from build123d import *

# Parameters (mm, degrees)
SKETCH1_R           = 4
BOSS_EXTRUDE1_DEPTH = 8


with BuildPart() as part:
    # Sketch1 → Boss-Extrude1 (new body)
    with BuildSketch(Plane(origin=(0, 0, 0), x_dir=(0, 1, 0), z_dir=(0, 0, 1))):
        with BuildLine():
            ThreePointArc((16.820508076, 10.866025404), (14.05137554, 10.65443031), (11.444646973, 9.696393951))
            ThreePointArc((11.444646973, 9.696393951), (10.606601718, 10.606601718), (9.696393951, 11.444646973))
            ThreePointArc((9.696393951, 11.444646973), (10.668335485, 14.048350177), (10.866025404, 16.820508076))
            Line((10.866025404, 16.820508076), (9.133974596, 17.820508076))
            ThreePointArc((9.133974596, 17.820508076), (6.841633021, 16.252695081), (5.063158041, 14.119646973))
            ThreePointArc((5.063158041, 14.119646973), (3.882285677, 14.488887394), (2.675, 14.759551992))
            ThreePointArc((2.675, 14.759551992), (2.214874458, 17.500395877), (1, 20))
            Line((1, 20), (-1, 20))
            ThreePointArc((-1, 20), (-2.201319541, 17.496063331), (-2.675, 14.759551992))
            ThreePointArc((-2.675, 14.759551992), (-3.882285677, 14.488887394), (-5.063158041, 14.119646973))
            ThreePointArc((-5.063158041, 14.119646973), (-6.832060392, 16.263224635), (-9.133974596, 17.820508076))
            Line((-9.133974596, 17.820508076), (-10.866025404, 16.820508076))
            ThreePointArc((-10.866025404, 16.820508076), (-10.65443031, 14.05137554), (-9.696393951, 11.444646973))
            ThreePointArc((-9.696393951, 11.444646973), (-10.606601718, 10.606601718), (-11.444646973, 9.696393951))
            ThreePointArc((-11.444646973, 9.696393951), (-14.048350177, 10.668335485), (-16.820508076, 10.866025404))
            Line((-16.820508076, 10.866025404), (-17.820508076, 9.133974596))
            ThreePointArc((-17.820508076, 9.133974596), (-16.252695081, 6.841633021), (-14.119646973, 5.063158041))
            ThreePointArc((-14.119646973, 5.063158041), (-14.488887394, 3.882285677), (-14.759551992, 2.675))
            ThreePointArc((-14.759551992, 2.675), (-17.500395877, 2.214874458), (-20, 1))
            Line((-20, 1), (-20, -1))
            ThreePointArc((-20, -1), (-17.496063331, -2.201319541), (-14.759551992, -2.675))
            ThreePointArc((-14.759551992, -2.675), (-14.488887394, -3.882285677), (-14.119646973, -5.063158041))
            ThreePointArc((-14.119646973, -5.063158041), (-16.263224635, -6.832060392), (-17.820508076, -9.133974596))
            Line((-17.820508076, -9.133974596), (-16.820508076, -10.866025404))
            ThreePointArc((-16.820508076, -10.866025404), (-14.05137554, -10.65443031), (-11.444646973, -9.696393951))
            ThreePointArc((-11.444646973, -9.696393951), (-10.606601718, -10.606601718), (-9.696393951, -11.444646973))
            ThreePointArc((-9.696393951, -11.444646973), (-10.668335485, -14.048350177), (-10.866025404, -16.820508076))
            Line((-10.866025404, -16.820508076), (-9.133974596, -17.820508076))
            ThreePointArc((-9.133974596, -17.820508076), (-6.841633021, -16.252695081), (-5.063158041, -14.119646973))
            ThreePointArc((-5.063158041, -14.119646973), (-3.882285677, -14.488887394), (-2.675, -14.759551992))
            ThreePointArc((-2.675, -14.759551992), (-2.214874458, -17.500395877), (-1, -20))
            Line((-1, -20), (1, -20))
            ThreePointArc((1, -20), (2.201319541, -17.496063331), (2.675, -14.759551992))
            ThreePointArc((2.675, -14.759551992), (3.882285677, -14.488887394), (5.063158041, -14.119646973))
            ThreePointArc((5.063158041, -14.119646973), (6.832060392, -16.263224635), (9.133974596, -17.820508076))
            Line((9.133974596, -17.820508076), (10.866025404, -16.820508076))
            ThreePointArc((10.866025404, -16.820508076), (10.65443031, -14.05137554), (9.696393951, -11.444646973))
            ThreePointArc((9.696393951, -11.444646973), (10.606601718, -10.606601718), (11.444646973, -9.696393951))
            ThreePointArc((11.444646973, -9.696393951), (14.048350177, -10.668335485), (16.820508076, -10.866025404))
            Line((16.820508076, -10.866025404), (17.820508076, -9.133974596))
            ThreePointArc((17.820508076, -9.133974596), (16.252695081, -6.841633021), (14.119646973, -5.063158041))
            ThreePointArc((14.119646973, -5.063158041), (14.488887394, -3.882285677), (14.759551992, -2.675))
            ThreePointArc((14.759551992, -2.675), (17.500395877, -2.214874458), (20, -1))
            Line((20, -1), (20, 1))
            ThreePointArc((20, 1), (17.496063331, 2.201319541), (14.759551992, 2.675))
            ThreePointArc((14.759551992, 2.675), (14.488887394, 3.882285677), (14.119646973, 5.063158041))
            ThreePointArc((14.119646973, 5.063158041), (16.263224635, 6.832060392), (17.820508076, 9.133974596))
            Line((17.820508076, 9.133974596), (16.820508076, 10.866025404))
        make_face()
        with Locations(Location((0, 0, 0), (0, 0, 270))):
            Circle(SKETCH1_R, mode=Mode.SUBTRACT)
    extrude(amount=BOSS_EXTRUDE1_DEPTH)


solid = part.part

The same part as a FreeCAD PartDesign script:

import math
import FreeCAD as App
import Part
import Sketcher

doc = App.newDocument("Part")
body = doc.addObject("PartDesign::Body", "Body")

# Sketch on XY plane
sketch1 = body.newObject("Sketcher::SketchObject", "Sketch")
sketch1.AttachmentSupport = (doc.getObject("XY_Plane"), [""])
sketch1.MapMode = "FlatFace"
sketch1.addGeometry([
    Part.ArcOfCircle(Part.Circle(App.Vector(-0.788598, 16.197894, 0), App.Vector(0, 0, 1), 10.096642), math.radians(176.464589), math.radians(208.084619)),  # 0
    Part.ArcOfCircle(Part.Circle(App.Vector(0, 0, 0), App.Vector(0, 0, 1), 15), math.radians(130.272696), math.radians(139.727304)),  # 1
    Part.ArcOfCircle(Part.Circle(App.Vector(-16.120739, 1.143219, 0), App.Vector(0, 0, 1), 9.747956), math.radians(61.334204), math.radians(94.116587)),  # 2
    Part.LineSegment(App.Vector(-16.820508, 10.866025, 0), App.Vector(-17.820508, 9.133975, 0)),  # 3
    Part.ArcOfCircle(Part.Circle(App.Vector(-8.781893, 13.633489, 0), App.Vector(0, 0, 1), 10.096642), math.radians(-153.535411), math.radians(-121.915381)),  # 4
    Part.ArcOfCircle(Part.Circle(App.Vector(0, 0, 0), App.Vector(0, 0, 1), 15), math.radians(160.272696), math.radians(169.727304)),  # 5
    Part.ArcOfCircle(Part.Circle(App.Vector(-14.532579, -7.070313, 0), App.Vector(0, 0, 1), 9.747956), math.radians(91.334204), math.radians(124.116587)),  # 6
    Part.LineSegment(App.Vector(-20, 1, 0), App.Vector(-20, -1, 0)),  # 7
    Part.ArcOfCircle(Part.Circle(App.Vector(-14.422087, 7.416001, 0), App.Vector(0, 0, 1), 10.096642), math.radians(-123.535411), math.radians(-91.915381)),  # 8
    Part.ArcOfCircle(Part.Circle(App.Vector(0, 0, 0), App.Vector(0, 0, 1), 15), math.radians(-169.727304), math.radians(-160.272696)),  # 9
    Part.ArcOfCircle(Part.Circle(App.Vector(-9.050426, -13.38936, 0), App.Vector(0, 0, 1), 9.747956), math.radians(121.334204), math.radians(154.116587)),  # 10
    Part.LineSegment(App.Vector(-17.820508, -9.133975, 0), App.Vector(-16.820508, -10.866025, 0)),  # 11
    Part.ArcOfCircle(Part.Circle(App.Vector(-16.197894, -0.788598, 0), App.Vector(0, 0, 1), 10.096642), math.radians(-93.535411), math.radians(-61.915381)),  # 12
    Part.ArcOfCircle(Part.Circle(App.Vector(0, 0, 0), App.Vector(0, 0, 1), 15), math.radians(-139.727304), math.radians(-130.272696)),  # 13
    Part.ArcOfCircle(Part.Circle(App.Vector(-1.143219, -16.120739, 0), App.Vector(0, 0, 1), 9.747956), math.radians(151.334204), math.radians(184.116587)),  # 14
    Part.LineSegment(App.Vector(-10.866025, -16.820508, 0), App.Vector(-9.133975, -17.820508, 0)),  # 15
    Part.ArcOfCircle(Part.Circle(App.Vector(-13.633489, -8.781893, 0), App.Vector(0, 0, 1), 10.096642), math.radians(-63.535411), math.radians(-31.915381)),  # 16
    Part.ArcOfCircle(Part.Circle(App.Vector(0, 0, 0), App.Vector(0, 0, 1), 15), math.radians(-109.727304), math.radians(-100.272696)),  # 17
    Part.ArcOfCircle(Part.Circle(App.Vector(7.070313, -14.532579, 0), App.Vector(0, 0, 1), 9.747956), math.radians(-178.665796), math.radians(-145.883413)),  # 18
    Part.LineSegment(App.Vector(-1, -20, 0), App.Vector(1, -20, 0)),  # 19
    Part.ArcOfCircle(Part.Circle(App.Vector(-7.416001, -14.422087, 0), App.Vector(0, 0, 1), 10.096642), math.radians(-33.535411), math.radians(-1.915381)),  # 20
    Part.ArcOfCircle(Part.Circle(App.Vector(0, 0, 0), App.Vector(0, 0, 1), 15), math.radians(-79.727304), math.radians(-70.272696)),  # 21
    Part.ArcOfCircle(Part.Circle(App.Vector(13.38936, -9.050426, 0), App.Vector(0, 0, 1), 9.747956), math.radians(-148.665796), math.radians(-115.883413)),  # 22
    Part.LineSegment(App.Vector(9.133975, -17.820508, 0), App.Vector(10.866025, -16.820508, 0)),  # 23
    Part.ArcOfCircle(Part.Circle(App.Vector(0.788598, -16.197894, 0), App.Vector(0, 0, 1), 10.096642), math.radians(-3.535411), math.radians(28.084619)),  # 24
    Part.ArcOfCircle(Part.Circle(App.Vector(0, 0, 0), App.Vector(0, 0, 1), 15), math.radians(-49.727304), math.radians(-40.272696)),  # 25
    Part.ArcOfCircle(Part.Circle(App.Vector(16.120739, -1.143219, 0), App.Vector(0, 0, 1), 9.747956), math.radians(-118.665796), math.radians(-85.883413)),  # 26
    Part.LineSegment(App.Vector(16.820508, -10.866025, 0), App.Vector(17.820508, -9.133975, 0)),  # 27
    Part.ArcOfCircle(Part.Circle(App.Vector(8.781893, -13.633489, 0), App.Vector(0, 0, 1), 10.096642), math.radians(26.464589), math.radians(58.084619)),  # 28
    Part.ArcOfCircle(Part.Circle(App.Vector(0, 0, 0), App.Vector(0, 0, 1), 15), math.radians(-19.727304), math.radians(-10.272696)),  # 29
    Part.ArcOfCircle(Part.Circle(App.Vector(14.532579, 7.070313, 0), App.Vector(0, 0, 1), 9.747956), math.radians(-88.665796), math.radians(-55.883413)),  # 30
    Part.LineSegment(App.Vector(20, -1, 0), App.Vector(20, 1, 0)),  # 31
    Part.ArcOfCircle(Part.Circle(App.Vector(14.422087, -7.416001, 0), App.Vector(0, 0, 1), 10.096642), math.radians(56.464589), math.radians(88.084619)),  # 32
    Part.ArcOfCircle(Part.Circle(App.Vector(0, 0, 0), App.Vector(0, 0, 1), 15), math.radians(10.272696), math.radians(19.727304)),  # 33
    Part.ArcOfCircle(Part.Circle(App.Vector(9.050426, 13.38936, 0), App.Vector(0, 0, 1), 9.747956), math.radians(-58.665796), math.radians(-25.883413)),  # 34
    Part.LineSegment(App.Vector(17.820508, 9.133975, 0), App.Vector(16.820508, 10.866025, 0)),  # 35
    Part.ArcOfCircle(Part.Circle(App.Vector(16.197894, 0.788598, 0), App.Vector(0, 0, 1), 10.096642), math.radians(86.464589), math.radians(118.084619)),  # 36
    Part.ArcOfCircle(Part.Circle(App.Vector(0, 0, 0), App.Vector(0, 0, 1), 15), math.radians(40.272696), math.radians(49.727304)),  # 37
    Part.ArcOfCircle(Part.Circle(App.Vector(1.143219, 16.120739, 0), App.Vector(0, 0, 1), 9.747956), math.radians(-28.665796), math.radians(4.116587)),  # 38
    Part.LineSegment(App.Vector(10.866025, 16.820508, 0), App.Vector(9.133975, 17.820508, 0)),  # 39
    Part.ArcOfCircle(Part.Circle(App.Vector(13.633489, 8.781893, 0), App.Vector(0, 0, 1), 10.096642), math.radians(116.464589), math.radians(148.084619)),  # 40
    Part.ArcOfCircle(Part.Circle(App.Vector(0, 0, 0), App.Vector(0, 0, 1), 15), math.radians(70.272696), math.radians(79.727304)),  # 41
    Part.ArcOfCircle(Part.Circle(App.Vector(-7.070313, 14.532579, 0), App.Vector(0, 0, 1), 9.747956), math.radians(1.334204), math.radians(34.116587)),  # 42
    Part.LineSegment(App.Vector(1, 20, 0), App.Vector(-1, 20, 0)),  # 43
    Part.ArcOfCircle(Part.Circle(App.Vector(7.416001, 14.422087, 0), App.Vector(0, 0, 1), 10.096642), math.radians(146.464589), math.radians(178.084619)),  # 44
    Part.ArcOfCircle(Part.Circle(App.Vector(0, 0, 0), App.Vector(0, 0, 1), 15), math.radians(100.272696), math.radians(109.727304)),  # 45
    Part.ArcOfCircle(Part.Circle(App.Vector(-13.38936, 9.050426, 0), App.Vector(0, 0, 1), 9.747956), math.radians(31.334204), math.radians(64.116587)),  # 46
    Part.LineSegment(App.Vector(-9.133975, 17.820508, 0), App.Vector(-10.866025, 16.820508, 0)),  # 47
    Part.Circle(App.Vector(0, 0, 0), App.Vector(0, 0, 1), 4),  # 48
], False)
sketch1.addConstraint([
    Sketcher.Constraint("Coincident", 0, 2, 1, 1),
    Sketcher.Constraint("Coincident", 1, 2, 2, 1),
    Sketcher.Constraint("Coincident", 2, 2, 3, 1),
    Sketcher.Constraint("Coincident", 3, 2, 4, 1),
    Sketcher.Constraint("Coincident", 4, 2, 5, 1),
    Sketcher.Constraint("Coincident", 5, 2, 6, 1),
    Sketcher.Constraint("Coincident", 6, 2, 7, 1),
    Sketcher.Constraint("Coincident", 7, 2, 8, 1),
    Sketcher.Constraint("Coincident", 8, 2, 9, 1),
    Sketcher.Constraint("Coincident", 9, 2, 10, 1),
    Sketcher.Constraint("Coincident", 10, 2, 11, 1),
    Sketcher.Constraint("Coincident", 11, 2, 12, 1),
    Sketcher.Constraint("Coincident", 12, 2, 13, 1),
    Sketcher.Constraint("Coincident", 13, 2, 14, 1),
    Sketcher.Constraint("Coincident", 14, 2, 15, 1),
    Sketcher.Constraint("Coincident", 15, 2, 16, 1),
    Sketcher.Constraint("Coincident", 16, 2, 17, 1),
    Sketcher.Constraint("Coincident", 17, 2, 18, 1),
    Sketcher.Constraint("Coincident", 18, 2, 19, 1),
    Sketcher.Constraint("Coincident", 19, 2, 20, 1),
    Sketcher.Constraint("Coincident", 20, 2, 21, 1),
    Sketcher.Constraint("Coincident", 21, 2, 22, 1),
    Sketcher.Constraint("Coincident", 22, 2, 23, 1),
    Sketcher.Constraint("Coincident", 23, 2, 24, 1),
    Sketcher.Constraint("Coincident", 24, 2, 25, 1),
    Sketcher.Constraint("Coincident", 25, 2, 26, 1),
    Sketcher.Constraint("Coincident", 26, 2, 27, 1),
    Sketcher.Constraint("Coincident", 27, 2, 28, 1),
    Sketcher.Constraint("Coincident", 28, 2, 29, 1),
    Sketcher.Constraint("Coincident", 29, 2, 30, 1),
    Sketcher.Constraint("Coincident", 30, 2, 31, 1),
    Sketcher.Constraint("Coincident", 31, 2, 32, 1),
    Sketcher.Constraint("Coincident", 32, 2, 33, 1),
    Sketcher.Constraint("Coincident", 33, 2, 34, 1),
    Sketcher.Constraint("Coincident", 34, 2, 35, 1),
    Sketcher.Constraint("Coincident", 35, 2, 36, 1),
    Sketcher.Constraint("Coincident", 36, 2, 37, 1),
    Sketcher.Constraint("Coincident", 37, 2, 38, 1),
    Sketcher.Constraint("Coincident", 38, 2, 39, 1),
    Sketcher.Constraint("Coincident", 39, 2, 40, 1),
    Sketcher.Constraint("Coincident", 40, 2, 41, 1),
    Sketcher.Constraint("Coincident", 41, 2, 42, 1),
    Sketcher.Constraint("Coincident", 42, 2, 43, 1),
    Sketcher.Constraint("Coincident", 43, 2, 44, 1),
    Sketcher.Constraint("Coincident", 44, 2, 45, 1),
    Sketcher.Constraint("Coincident", 45, 2, 46, 1),
    Sketcher.Constraint("Coincident", 46, 2, 47, 1),
    Sketcher.Constraint("Coincident", 47, 2, 0, 1),
    Sketcher.Constraint("Vertical", 7),
    Sketcher.Constraint("Horizontal", 19),
    Sketcher.Constraint("Vertical", 31),
    Sketcher.Constraint("Horizontal", 43),
    Sketcher.Constraint("Coincident", 1, 3, -1, 1),
    Sketcher.Constraint("Coincident", 5, 3, -1, 1),
    Sketcher.Constraint("Coincident", 9, 3, -1, 1),
    Sketcher.Constraint("Coincident", 13, 3, -1, 1),
    Sketcher.Constraint("Coincident", 17, 3, -1, 1),
    Sketcher.Constraint("Coincident", 21, 3, -1, 1),
    Sketcher.Constraint("Coincident", 25, 3, -1, 1),
    Sketcher.Constraint("Coincident", 29, 3, -1, 1),
    Sketcher.Constraint("Coincident", 33, 3, -1, 1),
    Sketcher.Constraint("Coincident", 37, 3, -1, 1),
    Sketcher.Constraint("Coincident", 41, 3, -1, 1),
    Sketcher.Constraint("Coincident", 45, 3, -1, 1),
    Sketcher.Constraint("Coincident", 48, 3, -1, 1),
    Sketcher.Constraint("Diameter", 48, 8.0),
    Sketcher.Constraint("Radius", 1, 15.0),
    Sketcher.Constraint("Radius", 5, 15.0),
    Sketcher.Constraint("Radius", 9, 15.0),
    Sketcher.Constraint("Radius", 13, 15.0),
    Sketcher.Constraint("Radius", 17, 15.0),
    Sketcher.Constraint("Radius", 21, 15.0),
    Sketcher.Constraint("Radius", 25, 15.0),
    Sketcher.Constraint("Radius", 29, 15.0),
    Sketcher.Constraint("Radius", 33, 15.0),
    Sketcher.Constraint("Radius", 37, 15.0),
    Sketcher.Constraint("Radius", 41, 15.0),
    Sketcher.Constraint("Radius", 45, 15.0),
    Sketcher.Constraint("DistanceX", 19, 1, 19, 2, 2.0),
    Sketcher.Constraint("DistanceX", 43, 2, 43, 1, 2.0),
    Sketcher.Constraint("DistanceY", 7, 2, 7, 1, 2.0),
    Sketcher.Constraint("DistanceY", 31, 1, 31, 2, 2.0),
    Sketcher.Constraint("Distance", 3, 2.0),
    Sketcher.Constraint("Distance", 11, 2.0),
    Sketcher.Constraint("Distance", 15, 2.0),
    Sketcher.Constraint("Distance", 23, 2.0),
    Sketcher.Constraint("Distance", 27, 2.0),
    Sketcher.Constraint("Distance", 35, 2.0),
    Sketcher.Constraint("Distance", 39, 2.0),
    Sketcher.Constraint("Distance", 47, 2.0),
    Sketcher.Constraint("DistanceX", 6, 2, -1, 1, 20.0),
    Sketcher.Constraint("DistanceY", -1, 1, 6, 2, 1.0),
    Sketcher.Constraint("DistanceX", 18, 2, -1, 1, 1.0),
    Sketcher.Constraint("DistanceY", 18, 2, -1, 1, 20.0),
    Sketcher.Constraint("DistanceX", -1, 1, 30, 2, 20.0),
    Sketcher.Constraint("DistanceY", 30, 2, -1, 1, 1.0),
    Sketcher.Constraint("DistanceX", -1, 1, 42, 2, 1.0),
    Sketcher.Constraint("DistanceY", -1, 1, 42, 2, 20.0),
    Sketcher.Constraint("DistanceY", -1, 1, 8, 3, 7.416001),
    Sketcher.Constraint("DistanceX", 20, 3, -1, 1, 7.416001),
    Sketcher.Constraint("DistanceY", 32, 3, -1, 1, 7.416001),
    Sketcher.Constraint("DistanceX", -1, 1, 44, 3, 7.416001),
    Sketcher.Constraint("DistanceY", -1, 1, 5, 2, 2.675),
    Sketcher.Constraint("DistanceY", 8, 2, -1, 1, 2.675),
    Sketcher.Constraint("DistanceX", 17, 2, -1, 1, 2.675),
    Sketcher.Constraint("DistanceX", -1, 1, 20, 2, 2.675),
    Sketcher.Constraint("DistanceY", 29, 2, -1, 1, 2.675),
    Sketcher.Constraint("DistanceY", -1, 1, 32, 2, 2.675),
    Sketcher.Constraint("DistanceX", -1, 1, 41, 2, 2.675),
    Sketcher.Constraint("DistanceX", 44, 2, -1, 1, 2.675),
    Sketcher.Constraint("Radius", 0, 10.096642),
    Sketcher.Constraint("Radius", 2, 9.747956),
    Sketcher.Constraint("Radius", 4, 10.096642),
    Sketcher.Constraint("Radius", 6, 9.747956),
    Sketcher.Constraint("Radius", 10, 9.747956),
    Sketcher.Constraint("Radius", 12, 10.096642),
    Sketcher.Constraint("Radius", 14, 9.747956),
    Sketcher.Constraint("Radius", 16, 10.096642),
    Sketcher.Constraint("Radius", 18, 9.747956),
    Sketcher.Constraint("Radius", 22, 9.747956),
    Sketcher.Constraint("Radius", 24, 10.096642),
    Sketcher.Constraint("Radius", 26, 9.747956),
    Sketcher.Constraint("Radius", 28, 10.096642),
    Sketcher.Constraint("Radius", 30, 9.747956),
    Sketcher.Constraint("Radius", 34, 9.747956),
    Sketcher.Constraint("Radius", 36, 10.096642),
    Sketcher.Constraint("Radius", 38, 9.747956),
    Sketcher.Constraint("Radius", 40, 10.096642),
    Sketcher.Constraint("Radius", 42, 9.747956),
    Sketcher.Constraint("Radius", 46, 9.747956),
    Sketcher.Constraint("DistanceX", 0, 3, -1, 1, 0.788598),
    Sketcher.Constraint("DistanceY", 12, 3, -1, 1, 0.788598),
    Sketcher.Constraint("DistanceX", -1, 1, 24, 3, 0.788598),
    Sketcher.Constraint("DistanceY", -1, 1, 36, 3, 0.788598),
    Sketcher.Constraint("DistanceX", 2, 3, -1, 1, 16.120739),
    Sketcher.Constraint("DistanceY", -1, 1, 2, 3, 1.143219),
    Sketcher.Constraint("DistanceY", -1, 1, 4, 3, 13.633489),
    Sketcher.Constraint("DistanceY", 10, 3, -1, 1, 13.38936),
    Sketcher.Constraint("DistanceX", 14, 3, -1, 1, 1.143219),
    Sketcher.Constraint("DistanceY", 14, 3, -1, 1, 16.120739),
    Sketcher.Constraint("DistanceX", 16, 3, -1, 1, 13.633489),
    Sketcher.Constraint("DistanceX", -1, 1, 22, 3, 13.38936),
    Sketcher.Constraint("DistanceX", -1, 1, 26, 3, 16.120739),
    Sketcher.Constraint("DistanceY", 26, 3, -1, 1, 1.143219),
    Sketcher.Constraint("DistanceY", 28, 3, -1, 1, 13.633489),
    Sketcher.Constraint("DistanceY", -1, 1, 34, 3, 13.38936),
    Sketcher.Constraint("DistanceX", -1, 1, 38, 3, 1.143219),
    Sketcher.Constraint("DistanceY", -1, 1, 38, 3, 16.120739),
    Sketcher.Constraint("DistanceX", -1, 1, 40, 3, 13.633489),
    Sketcher.Constraint("DistanceX", 46, 3, -1, 1, 13.38936),
    Sketcher.Constraint("DistanceX", 2, 2, -1, 1, 16.820508),
    Sketcher.Constraint("DistanceX", 3, 2, -1, 1, 17.820508),
    Sketcher.Constraint("DistanceY", 9, 2, -1, 1, 5.063158),
    Sketcher.Constraint("DistanceX", 10, 2, -1, 1, 17.820508),
    Sketcher.Constraint("DistanceX", 11, 2, -1, 1, 16.820508),
    Sketcher.Constraint("DistanceY", 14, 2, -1, 1, 16.820508),
    Sketcher.Constraint("DistanceY", 15, 2, -1, 1, 17.820508),
    Sketcher.Constraint("DistanceX", -1, 1, 21, 2, 5.063158),
    Sketcher.Constraint("DistanceY", 22, 2, -1, 1, 17.820508),
    Sketcher.Constraint("DistanceY", 23, 2, -1, 1, 16.820508),
    Sketcher.Constraint("DistanceX", -1, 1, 26, 2, 16.820508),
    Sketcher.Constraint("DistanceX", -1, 1, 27, 2, 17.820508),
    Sketcher.Constraint("DistanceY", -1, 1, 33, 2, 5.063158),
    Sketcher.Constraint("DistanceX", -1, 1, 34, 2, 17.820508),
    Sketcher.Constraint("DistanceX", -1, 1, 35, 2, 16.820508),
    Sketcher.Constraint("DistanceY", -1, 1, 38, 2, 16.820508),
    Sketcher.Constraint("DistanceY", -1, 1, 39, 2, 17.820508),
    Sketcher.Constraint("DistanceX", 45, 2, -1, 1, 5.063158),
    Sketcher.Constraint("DistanceY", -1, 1, 46, 2, 17.820508),
    Sketcher.Constraint("DistanceY", -1, 1, 47, 2, 16.820508),
])
pad1 = body.newObject("PartDesign::Pad", "Pad")
pad1.Profile = sketch1
pad1.Length = 8

doc.recompute()
